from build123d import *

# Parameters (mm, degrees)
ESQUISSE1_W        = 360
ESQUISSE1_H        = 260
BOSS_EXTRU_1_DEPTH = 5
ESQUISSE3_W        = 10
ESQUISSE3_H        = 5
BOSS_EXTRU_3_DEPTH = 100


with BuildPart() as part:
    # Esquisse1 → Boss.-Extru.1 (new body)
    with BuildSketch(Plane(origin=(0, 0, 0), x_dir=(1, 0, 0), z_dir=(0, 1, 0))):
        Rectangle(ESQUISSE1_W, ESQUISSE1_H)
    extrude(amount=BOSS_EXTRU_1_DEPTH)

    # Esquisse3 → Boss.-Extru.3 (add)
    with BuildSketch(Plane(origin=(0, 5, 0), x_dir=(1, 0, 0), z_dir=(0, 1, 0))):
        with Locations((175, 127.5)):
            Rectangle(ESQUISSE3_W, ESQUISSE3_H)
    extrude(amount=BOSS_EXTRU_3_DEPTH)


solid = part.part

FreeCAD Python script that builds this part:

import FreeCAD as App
import Part
import Sketcher


def add_polygon(sketch, points):
    """Adds a closed chain of lines whose ends are joined by coincident constraints."""
    first, n = sketch.GeometryCount, len(points)
    for a, b in zip(points, points[1:] + points[:1]):
        sketch.addGeometry(Part.LineSegment(App.Vector(*a, 0), App.Vector(*b, 0)), False)
    for i in range(n):
        sketch.addConstraint(Sketcher.Constraint("Coincident", first + i, 2, first + (i + 1) % n, 1))

doc = App.newDocument("Part")
body = doc.addObject("PartDesign::Body", "Body")

# Sketch on XZ plane
sketch1 = body.newObject("Sketcher::SketchObject", "Sketch")
sketch1.AttachmentSupport = (doc.getObject("XZ_Plane"), [""])
sketch1.MapMode = "FlatFace"
add_polygon(sketch1, [(-180, -130), (-180, 130), (180, 130), (180, -130)])  # lines 0-3
sketch1.addConstraint([
    Sketcher.Constraint("Vertical", 0),
    Sketcher.Constraint("Horizontal", 1),
    Sketcher.Constraint("Vertical", 2),
    Sketcher.Constraint("Horizontal", 3),
    Sketcher.Constraint("Symmetric", 0, 2, 2, 2, -1, 1),
    Sketcher.Constraint("DistanceX", 1, 1, 1, 2, 360.0),
    Sketcher.Constraint("DistanceY", 0, 1, 0, 2, 260.0),
])
pad1 = body.newObject("PartDesign::Pad", "Pad")
pad1.Profile = sketch1
pad1.Length = 5
pad1.Reversed = True

# Sketch on XZ plane
sketch2 = body.newObject("Sketcher::SketchObject", "Sketch001")
sketch2.AttachmentSupport = (doc.getObject("XZ_Plane"), [""])
sketch2.MapMode = "FlatFace"
sketch2.AttachmentOffset = App.Placement(App.Vector(0, 0, -5), App.Rotation())
add_polygon(sketch2, [(170, -130), (170, -125), (180, -125), (180, -130)])  # lines 0-3
sketch2.addConstraint([
    Sketcher.Constraint("Vertical", 0),
    Sketcher.Constraint("Horizontal", 1),
    Sketcher.Constraint("Vertical", 2),
    Sketcher.Constraint("Horizontal", 3),
    Sketcher.Constraint("DistanceX", 1, 1, 1, 2, 10.0),
    Sketcher.Constraint("DistanceY", 0, 1, 0, 2, 5.0),
    Sketcher.Constraint("DistanceX", -1, 1, 0, 2, 170.0),
    Sketcher.Constraint("DistanceY", 0, 2, -1, 1, 125.0),
])
pad2 = body.newObject("PartDesign::Pad", "Pad001")
pad2.Profile = sketch2
pad2.Length = 100
pad2.Reversed = True

doc.recompute()
